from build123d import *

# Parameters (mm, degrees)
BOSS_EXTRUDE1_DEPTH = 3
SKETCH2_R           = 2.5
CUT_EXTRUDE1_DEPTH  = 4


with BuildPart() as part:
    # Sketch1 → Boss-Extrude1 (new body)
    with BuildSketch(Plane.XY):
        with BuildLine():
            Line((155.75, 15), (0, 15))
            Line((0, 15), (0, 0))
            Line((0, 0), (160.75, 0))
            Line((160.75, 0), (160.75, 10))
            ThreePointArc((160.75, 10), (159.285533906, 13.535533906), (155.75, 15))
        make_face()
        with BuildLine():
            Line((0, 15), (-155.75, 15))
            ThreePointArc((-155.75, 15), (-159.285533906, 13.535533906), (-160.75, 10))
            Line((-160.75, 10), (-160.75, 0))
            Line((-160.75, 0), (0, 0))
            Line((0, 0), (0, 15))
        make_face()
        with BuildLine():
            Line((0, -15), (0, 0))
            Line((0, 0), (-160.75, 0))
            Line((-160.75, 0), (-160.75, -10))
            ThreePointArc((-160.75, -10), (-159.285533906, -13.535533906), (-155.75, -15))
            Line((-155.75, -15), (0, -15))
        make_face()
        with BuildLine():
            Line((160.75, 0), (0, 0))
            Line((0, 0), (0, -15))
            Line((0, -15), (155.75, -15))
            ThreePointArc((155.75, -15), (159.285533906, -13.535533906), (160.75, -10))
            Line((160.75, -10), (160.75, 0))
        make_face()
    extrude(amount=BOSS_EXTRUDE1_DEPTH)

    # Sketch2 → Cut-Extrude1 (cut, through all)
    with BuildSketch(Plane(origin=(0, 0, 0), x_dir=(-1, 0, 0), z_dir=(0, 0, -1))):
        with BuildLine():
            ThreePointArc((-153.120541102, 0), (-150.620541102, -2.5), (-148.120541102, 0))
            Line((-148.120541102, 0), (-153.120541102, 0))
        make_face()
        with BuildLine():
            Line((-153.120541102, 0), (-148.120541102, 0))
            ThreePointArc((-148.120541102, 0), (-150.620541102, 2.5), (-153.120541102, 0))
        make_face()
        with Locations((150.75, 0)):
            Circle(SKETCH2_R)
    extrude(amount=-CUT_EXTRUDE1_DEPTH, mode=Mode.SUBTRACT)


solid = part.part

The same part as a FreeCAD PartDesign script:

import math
import FreeCAD as App
import Part
import Sketcher
from FreeCAD import Vector

doc = App.newDocument("Part")
params = doc.addObject("Spreadsheet::Sheet", "Params")
for row, (alias, value) in enumerate([
    ("sketch1_radius", "5 mm"),
    ("sketch1_height", "20 mm"),
    ("sketch1_width", "311.5 mm"),
    ("pad1_length", "3 mm"),
    ("sketch2_diameter", "5 mm"),
], start=1):
    params.set(f"A{row}", alias)
    params.set(f"B{row}", "=" + value)
    params.setAlias(f"B{row}", alias)

body = doc.addObject("PartDesign::Body", "Body")

# Sketch on XY plane
sketch1 = body.newObject("Sketcher::SketchObject", "Sketch")
sketch1.AttachmentSupport = (doc.getObject("XY_Plane"), [""])
sketch1.MapMode = "FlatFace"
sketch1.addGeometry([
    Part.LineSegment(Vector(156, 15, 0), Vector(-156, 15, 0)),  # 0
    Part.ArcOfCircle(Part.Circle(Vector(-156, 10, 0), Vector(0, 0, 1), 5), math.radians(90), math.radians(180)),  # 1
    Part.LineSegment(Vector(-161, 10, 0), Vector(-161, -10, 0)),  # 2
    Part.ArcOfCircle(Part.Circle(Vector(-156, -10, 0), Vector(0, 0, 1), 5), math.radians(180), math.radians(270)),  # 3
    Part.LineSegment(Vector(-156, -15, 0), Vector(156, -15, 0)),  # 4
    Part.ArcOfCircle(Part.Circle(Vector(156, -10, 0), Vector(0, 0, 1), 5), math.radians(-90), math.radians(0)),  # 5
    Part.LineSegment(Vector(161, -10, 0), Vector(161, 10, 0)),  # 6
    Part.ArcOfCircle(Part.Circle(Vector(156, 10, 0), Vector(0, 0, 1), 5), math.radians(0), math.radians(90)),  # 7
], False)
sketch1.addConstraint([
    Sketcher.Constraint("Tangent", 0, 2, 1, 1),
    Sketcher.Constraint("Tangent", 1, 2, 2, 1),
    Sketcher.Constraint("Tangent", 2, 2, 3, 1),
    Sketcher.Constraint("Tangent", 3, 2, 4, 1),
    Sketcher.Constraint("Tangent", 4, 2, 5, 1),
    Sketcher.Constraint("Tangent", 5, 2, 6, 1),
    Sketcher.Constraint("Tangent", 6, 2, 7, 1),
    Sketcher.Constraint("Tangent", 7, 2, 0, 1),
    Sketcher.Constraint("Horizontal", 0),
    Sketcher.Constraint("Vertical", 2),
    Sketcher.Constraint("Horizontal", 4),
    Sketcher.Constraint("Vertical", 6),
    Sketcher.Constraint("Equal", 1, 3),
    Sketcher.Constraint("Equal", 3, 5),
    Sketcher.Constraint("Equal", 5, 7),
    Sketcher.Constraint("Symmetric", 1, 3, 5, 3, -1, 1),
    Sketcher.Constraint("Radius", 1, 5.0),
    Sketcher.Constraint("DistanceY", 2, 2, 2, 1, 20.0),
    Sketcher.Constraint("DistanceX", 0, 2, 0, 1, 311.5),
])
sketch1.setExpression("Constraints[16]", "Params.sketch1_radius")
sketch1.setExpression("Constraints[17]", "Params.sketch1_height")
sketch1.setExpression("Constraints[18]", "Params.sketch1_width")
pad1 = body.newObject("PartDesign::Pad", "Pad")
pad1.Profile = sketch1
pad1.setExpression("Length", "Params.pad1_length")

# Sketch on XY plane
sketch2 = body.newObject("Sketcher::SketchObject", "Sketch001")
sketch2.AttachmentSupport = (doc.getObject("XY_Plane"), [""])
sketch2.MapMode = "FlatFace"
sketch2.addGeometry([
    Part.Circle(Vector(150.6, 0, 0), Vector(0, 0, 1), 2.5),
    Part.Circle(Vector(-150.8, 0, 0), Vector(0, 0, 1), 2.5),
], False)
sketch2.addConstraint([
    Sketcher.Constraint("Equal", 0, 1),
    Sketcher.Constraint("PointOnObject", 0, 3, -1),
    Sketcher.Constraint("PointOnObject", 1, 3, -1),
    Sketcher.Constraint("Diameter", 0, 5.0),
    Sketcher.Constraint("DistanceX", 1, 3, -1, 1, 150.75),
    Sketcher.Constraint("DistanceX", -1, 1, 0, 3, 150.620541),
])
sketch2.setExpression("Constraints[3]", "Params.sketch2_diameter")
pocket1 = body.newObject("PartDesign::Pocket", "Pocket")
pocket1.Profile = sketch2
pocket1.Type = "ThroughAll"
pocket1.Reversed = True

doc.recompute()
